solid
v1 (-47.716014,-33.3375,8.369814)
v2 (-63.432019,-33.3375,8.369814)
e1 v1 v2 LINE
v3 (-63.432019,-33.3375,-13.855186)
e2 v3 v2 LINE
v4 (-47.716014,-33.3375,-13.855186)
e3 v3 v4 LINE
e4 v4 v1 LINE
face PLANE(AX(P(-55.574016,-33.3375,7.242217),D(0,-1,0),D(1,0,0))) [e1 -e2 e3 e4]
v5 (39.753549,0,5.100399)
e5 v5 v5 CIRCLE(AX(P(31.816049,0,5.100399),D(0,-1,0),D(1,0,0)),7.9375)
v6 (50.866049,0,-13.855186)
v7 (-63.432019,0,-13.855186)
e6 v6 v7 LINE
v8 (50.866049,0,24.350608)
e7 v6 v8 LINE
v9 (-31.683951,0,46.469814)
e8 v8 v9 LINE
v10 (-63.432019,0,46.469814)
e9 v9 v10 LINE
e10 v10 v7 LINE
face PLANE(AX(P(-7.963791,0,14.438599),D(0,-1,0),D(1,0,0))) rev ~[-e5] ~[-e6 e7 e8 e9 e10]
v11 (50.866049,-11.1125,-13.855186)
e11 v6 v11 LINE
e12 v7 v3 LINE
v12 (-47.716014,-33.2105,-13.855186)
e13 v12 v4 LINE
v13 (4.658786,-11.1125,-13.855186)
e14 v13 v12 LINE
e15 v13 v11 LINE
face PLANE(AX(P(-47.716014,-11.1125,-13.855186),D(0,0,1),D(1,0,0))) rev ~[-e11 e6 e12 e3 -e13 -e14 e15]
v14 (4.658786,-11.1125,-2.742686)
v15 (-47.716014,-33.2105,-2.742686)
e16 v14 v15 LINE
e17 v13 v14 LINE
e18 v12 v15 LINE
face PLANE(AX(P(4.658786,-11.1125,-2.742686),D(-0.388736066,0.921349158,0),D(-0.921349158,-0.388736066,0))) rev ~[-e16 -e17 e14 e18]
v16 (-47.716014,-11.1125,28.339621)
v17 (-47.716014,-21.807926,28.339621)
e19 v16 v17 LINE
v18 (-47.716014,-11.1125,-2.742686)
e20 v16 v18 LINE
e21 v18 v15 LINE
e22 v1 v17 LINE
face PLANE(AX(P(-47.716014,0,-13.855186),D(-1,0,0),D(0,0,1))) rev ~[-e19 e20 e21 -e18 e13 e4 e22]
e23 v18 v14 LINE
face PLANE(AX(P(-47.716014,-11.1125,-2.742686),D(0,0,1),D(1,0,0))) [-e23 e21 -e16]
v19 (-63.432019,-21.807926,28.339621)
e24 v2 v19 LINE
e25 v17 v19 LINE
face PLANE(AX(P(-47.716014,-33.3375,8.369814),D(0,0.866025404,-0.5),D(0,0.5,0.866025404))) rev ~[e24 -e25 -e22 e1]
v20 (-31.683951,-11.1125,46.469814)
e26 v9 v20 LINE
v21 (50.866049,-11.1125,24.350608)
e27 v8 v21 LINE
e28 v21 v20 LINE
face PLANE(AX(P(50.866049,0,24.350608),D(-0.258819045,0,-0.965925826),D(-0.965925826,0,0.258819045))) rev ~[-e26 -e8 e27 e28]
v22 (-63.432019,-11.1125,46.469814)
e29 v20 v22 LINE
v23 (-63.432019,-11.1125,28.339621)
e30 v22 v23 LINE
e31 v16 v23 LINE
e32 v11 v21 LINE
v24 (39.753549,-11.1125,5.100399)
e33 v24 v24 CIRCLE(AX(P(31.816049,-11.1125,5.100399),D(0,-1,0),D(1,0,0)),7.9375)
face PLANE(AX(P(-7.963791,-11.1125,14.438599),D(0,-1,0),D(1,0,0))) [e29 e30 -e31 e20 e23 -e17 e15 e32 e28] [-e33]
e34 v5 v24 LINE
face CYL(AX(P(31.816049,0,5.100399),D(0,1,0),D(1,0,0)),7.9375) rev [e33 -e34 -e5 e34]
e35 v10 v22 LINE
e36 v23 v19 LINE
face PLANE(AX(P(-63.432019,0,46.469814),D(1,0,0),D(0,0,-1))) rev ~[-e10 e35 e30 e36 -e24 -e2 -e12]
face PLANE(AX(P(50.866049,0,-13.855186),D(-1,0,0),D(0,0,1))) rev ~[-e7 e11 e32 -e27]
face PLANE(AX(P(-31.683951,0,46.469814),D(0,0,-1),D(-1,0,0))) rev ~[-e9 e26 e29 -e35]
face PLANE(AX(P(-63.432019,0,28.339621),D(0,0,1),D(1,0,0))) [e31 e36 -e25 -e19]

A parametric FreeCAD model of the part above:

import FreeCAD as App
import Part
import Sketcher

V = App.Vector
Q = App.Units.Quantity

doc = App.newDocument("Part")
body = doc.addObject("PartDesign::Body", "Body")

# Sketch on XZ plane
sketch1 = doc.addObject("Sketcher::SketchObject", "Sketch")
body.addObject(sketch1)
sketch1.AttachmentSupport = (doc.XZ_Plane, [""])
sketch1.MapMode = "FlatFace"
sketch1.addGeometry(Part.LineSegment(V(-32, 46, 0), V(-63, 46, 0)), False)
sketch1.addGeometry(Part.LineSegment(V(-63, 46, 0), V(-63, -14, 0)), False)
sketch1.addGeometry(Part.LineSegment(V(-63, -14, 0), V(51, -14, 0)), False)
sketch1.addGeometry(Part.LineSegment(V(51, -14, 0), V(51, 24, 0)), False)
sketch1.addGeometry(Part.LineSegment(V(51, 24, 0), V(-32, 46, 0)), False)
sketch1.addGeometry(Part.Circle(V(32, 5, 0), V(0, 0, 1), 8), False)
sketch1.addConstraint(Sketcher.Constraint("Coincident", 0, 2, 1, 1))
sketch1.addConstraint(Sketcher.Constraint("Coincident", 1, 2, 2, 1))
sketch1.addConstraint(Sketcher.Constraint("Coincident", 2, 2, 3, 1))
sketch1.addConstraint(Sketcher.Constraint("Coincident", 3, 2, 4, 1))
sketch1.addConstraint(Sketcher.Constraint("Coincident", 4, 2, 0, 1))
sketch1.addConstraint(Sketcher.Constraint("Horizontal", 0))
sketch1.addConstraint(Sketcher.Constraint("Vertical", 1))
sketch1.addConstraint(Sketcher.Constraint("Horizontal", 2))
sketch1.addConstraint(Sketcher.Constraint("Vertical", 3))
sketch1.addConstraint(Sketcher.Constraint("Diameter", 5, Q("0.625 in")))
sketch1.addConstraint(Sketcher.Constraint("Angle", 4, Q("165 deg")))
sketch1.addConstraint(Sketcher.Constraint("DistanceX", 4, 2, 5, 3, Q("2.5 in")))
sketch1.addConstraint(Sketcher.Constraint("DistanceY", 1, 2, 1, 1, Q("2.375 in")))
sketch1.addConstraint(Sketcher.Constraint("DistanceX", 5, 3, 2, 2, Q("0.75 in")))
sketch1.addConstraint(Sketcher.Constraint("DistanceY", -1, 1, 5, 3, Q("5.100399 mm")))
sketch1.addConstraint(Sketcher.Constraint("DistanceX", 0, 2, 0, 1, Q("31.748068 mm")))
sketch1.addConstraint(Sketcher.Constraint("DistanceX", -1, 1, 5, 3, Q("31.816049 mm")))
sketch1.addConstraint(Sketcher.Constraint("DistanceY", 5, 3, 3, 2, Q("19.250208 mm")))
pad1 = doc.addObject("PartDesign::Pad", "Pad")
body.addObject(pad1)
pad1.Profile = sketch1
pad1.Length = Q("0.4375 in")

# Sketch on XZ plane
sketch2 = doc.addObject("Sketcher::SketchObject", "Sketch001")
body.addObject(sketch2)
sketch2.AttachmentSupport = (doc.XZ_Plane, [""])
sketch2.MapMode = "FlatFace"
sketch2.addGeometry(Part.LineSegment(V(-63, 28, 0), V(-63, -14, 0)), False)
sketch2.addGeometry(Part.LineSegment(V(-63, -14, 0), V(-48, -14, 0)), False)
sketch2.addGeometry(Part.LineSegment(V(-48, -14, 0), V(-48, 28, 0)), False)
sketch2.addGeometry(Part.LineSegment(V(-48, 28, 0), V(-63, 28, 0)), False)
sketch2.addConstraint(Sketcher.Constraint("Coincident", 0, 2, 1, 1))
sketch2.addConstraint(Sketcher.Constraint("Coincident", 1, 2, 2, 1))
sketch2.addConstraint(Sketcher.Constraint("Coincident", 2, 2, 3, 1))
sketch2.addConstraint(Sketcher.Constraint("Coincident", 3, 2, 0, 1))
sketch2.addConstraint(Sketcher.Constraint("Vertical", 0))
sketch2.addConstraint(Sketcher.Constraint("Horizontal", 1))
sketch2.addConstraint(Sketcher.Constraint("Vertical", 2))
sketch2.addConstraint(Sketcher.Constraint("Horizontal", 3))
sketch2.addConstraint(Sketcher.Constraint("DistanceX", 1, 1, 1, 2, Q("15.716005 mm")))
sketch2.addConstraint(Sketcher.Constraint("DistanceY", 0, 2, 0, 1, Q("42.194807 mm")))
sketch2.addConstraint(Sketcher.Constraint("DistanceX", 0, 2, -1, 1, Q("63.432019 mm")))
sketch2.addConstraint(Sketcher.Constraint("DistanceY", -1, 1, 2, 2, Q("28.339621 mm")))
pad2 = doc.addObject("PartDesign::Pad", "Pad001")
body.addObject(pad2)
pad2.Profile = sketch2
pad2.Length = Q("1.3125 in")

# Sketch on YZ plane
sketch3 = doc.addObject("Sketcher::SketchObject", "Sketch002")
body.addObject(sketch3)
sketch3.AttachmentSupport = (doc.YZ_Plane, [""])
sketch3.MapMode = "FlatFace"
sketch3.AttachmentOffset = App.Placement(V(0, 0, -47.716014), App.Rotation())
sketch3.addGeometry(Part.LineSegment(V(-33, 28, 0), V(-33, 8, 0)), False)
sketch3.addGeometry(Part.LineSegment(V(-33, 8, 0), V(-22, 28, 0)), False)
sketch3.addGeometry(Part.LineSegment(V(-22, 28, 0), V(-33, 28, 0)), False)
sketch3.addConstraint(Sketcher.Constraint("Coincident", 0, 2, 1, 1))
sketch3.addConstraint(Sketcher.Constraint("Coincident", 1, 2, 2, 1))
sketch3.addConstraint(Sketcher.Constraint("Coincident", 2, 2, 0, 1))
sketch3.addConstraint(Sketcher.Constraint("Vertical", 0))
sketch3.addConstraint(Sketcher.Constraint("Horizontal", 2))
sketch3.addConstraint(Sketcher.Constraint("Angle", 1, Q("60 deg")))
sketch3.addConstraint(Sketcher.Constraint("DistanceX", 0, 2, -1, 1, Q("1.3125 in")))
sketch3.addConstraint(Sketcher.Constraint("DistanceX", 2, 2, 2, 1, Q("11.529574 mm")))
sketch3.addConstraint(Sketcher.Constraint("DistanceY", -1, 1, 1, 2, Q("28.339621 mm")))
pocket1 = doc.addObject("PartDesign::Pocket", "Pocket")
body.addObject(pocket1)
pocket1.Profile = sketch3
pocket1.Length = Q("1 in")

# Sketch on XZ plane
sketch4 = doc.addObject("Sketcher::SketchObject", "Sketch003")
body.addObject(sketch4)
sketch4.AttachmentSupport = (doc.XZ_Plane, [""])
sketch4.MapMode = "FlatFace"
sketch4.AttachmentOffset = App.Placement(V(0, 0, 0.4375 * 25.4), App.Rotation())
sketch4.addGeometry(Part.LineSegment(V(-48, -3, 0), V(-48, -14, 0)), False)
sketch4.addGeometry(Part.LineSegment(V(-48, -14, 0), V(5, -14, 0)), False)
sketch4.addGeometry(Part.LineSegment(V(5, -14, 0), V(5, -3, 0)), False)
sketch4.addGeometry(Part.LineSegment(V(5, -3, 0), V(-48, -3, 0)), False)
sketch4.addConstraint(Sketcher.Constraint("Coincident", 0, 2, 1, 1))
sketch4.addConstraint(Sketcher.Constraint("Coincident", 1, 2, 2, 1))
sketch4.addConstraint(Sketcher.Constraint("Coincident", 2, 2, 3, 1))
sketch4.addConstraint(Sketcher.Constraint("Coincident", 3, 2, 0, 1))
sketch4.addConstraint(Sketcher.Constraint("Vertical", 0))
sketch4.addConstraint(Sketcher.Constraint("Horizontal", 1))
sketch4.addConstraint(Sketcher.Constraint("Vertical", 2))
sketch4.addConstraint(Sketcher.Constraint("Horizontal", 3))
sketch4.addConstraint(Sketcher.Constraint("DistanceX", 1, 1, 1, 2, Q("2.062 in")))
sketch4.addConstraint(Sketcher.Constraint("DistanceY", 0, 2, 0, 1, Q("0.4375 in")))
sketch4.addConstraint(Sketcher.Constraint("DistanceX", 0, 2, -1, 1, Q("47.716014 mm")))
sketch4.addConstraint(Sketcher.Constraint("DistanceY", 0, 2, -1, 1, Q("13.855186 mm")))
pad3 = doc.addObject("PartDesign::Pad", "Pad002")
body.addObject(pad3)
pad3.Profile = sketch4
pad3.Length = Q("0.87 in")

# Sketch on XY plane
sketch5 = doc.addObject("Sketcher::SketchObject", "Sketch004")
body.addObject(sketch5)
sketch5.AttachmentSupport = (doc.XY_Plane, [""])
sketch5.MapMode = "FlatFace"
sketch5.AttachmentOffset = App.Placement(V(0, 0, -2.742686), App.Rotation())
sketch5.addGeometry(Part.LineSegment(V(5, -11, 0), V(-48, -33, 0)), False)
sketch5.addGeometry(Part.LineSegment(V(-48, -33, 0), V(5, -33, 0)), False)
sketch5.addGeometry(Part.LineSegment(V(5, -33, 0), V(5, -11, 0)), False)
sketch5.addConstraint(Sketcher.Constraint("Coincident", 0, 2, 1, 1))
sketch5.addConstraint(Sketcher.Constraint("Coincident", 1, 2, 2, 1))
sketch5.addConstraint(Sketcher.Constraint("Coincident", 2, 2, 0, 1))
sketch5.addConstraint(Sketcher.Constraint("Horizontal", 1))
sketch5.addConstraint(Sketcher.Constraint("Vertical", 2))
sketch5.addConstraint(Sketcher.Constraint("DistanceY", 2, 1, 2, 2, Q("0.87 in")))
sketch5.addConstraint(Sketcher.Constraint("DistanceX", 1, 1, 1, 2, Q("2.062 in")))
sketch5.addConstraint(Sketcher.Constraint("DistanceY", 2, 2, -1, 1, Q("0.4375 in")))
sketch5.addConstraint(Sketcher.Constraint("DistanceX", 0, 2, -1, 1, Q("47.716014 mm")))
pocket2 = doc.addObject("PartDesign::Pocket", "Pocket001")
body.addObject(pocket2)
pocket2.Profile = sketch5
pocket2.Length = Q("1 in")

doc.recompute()
